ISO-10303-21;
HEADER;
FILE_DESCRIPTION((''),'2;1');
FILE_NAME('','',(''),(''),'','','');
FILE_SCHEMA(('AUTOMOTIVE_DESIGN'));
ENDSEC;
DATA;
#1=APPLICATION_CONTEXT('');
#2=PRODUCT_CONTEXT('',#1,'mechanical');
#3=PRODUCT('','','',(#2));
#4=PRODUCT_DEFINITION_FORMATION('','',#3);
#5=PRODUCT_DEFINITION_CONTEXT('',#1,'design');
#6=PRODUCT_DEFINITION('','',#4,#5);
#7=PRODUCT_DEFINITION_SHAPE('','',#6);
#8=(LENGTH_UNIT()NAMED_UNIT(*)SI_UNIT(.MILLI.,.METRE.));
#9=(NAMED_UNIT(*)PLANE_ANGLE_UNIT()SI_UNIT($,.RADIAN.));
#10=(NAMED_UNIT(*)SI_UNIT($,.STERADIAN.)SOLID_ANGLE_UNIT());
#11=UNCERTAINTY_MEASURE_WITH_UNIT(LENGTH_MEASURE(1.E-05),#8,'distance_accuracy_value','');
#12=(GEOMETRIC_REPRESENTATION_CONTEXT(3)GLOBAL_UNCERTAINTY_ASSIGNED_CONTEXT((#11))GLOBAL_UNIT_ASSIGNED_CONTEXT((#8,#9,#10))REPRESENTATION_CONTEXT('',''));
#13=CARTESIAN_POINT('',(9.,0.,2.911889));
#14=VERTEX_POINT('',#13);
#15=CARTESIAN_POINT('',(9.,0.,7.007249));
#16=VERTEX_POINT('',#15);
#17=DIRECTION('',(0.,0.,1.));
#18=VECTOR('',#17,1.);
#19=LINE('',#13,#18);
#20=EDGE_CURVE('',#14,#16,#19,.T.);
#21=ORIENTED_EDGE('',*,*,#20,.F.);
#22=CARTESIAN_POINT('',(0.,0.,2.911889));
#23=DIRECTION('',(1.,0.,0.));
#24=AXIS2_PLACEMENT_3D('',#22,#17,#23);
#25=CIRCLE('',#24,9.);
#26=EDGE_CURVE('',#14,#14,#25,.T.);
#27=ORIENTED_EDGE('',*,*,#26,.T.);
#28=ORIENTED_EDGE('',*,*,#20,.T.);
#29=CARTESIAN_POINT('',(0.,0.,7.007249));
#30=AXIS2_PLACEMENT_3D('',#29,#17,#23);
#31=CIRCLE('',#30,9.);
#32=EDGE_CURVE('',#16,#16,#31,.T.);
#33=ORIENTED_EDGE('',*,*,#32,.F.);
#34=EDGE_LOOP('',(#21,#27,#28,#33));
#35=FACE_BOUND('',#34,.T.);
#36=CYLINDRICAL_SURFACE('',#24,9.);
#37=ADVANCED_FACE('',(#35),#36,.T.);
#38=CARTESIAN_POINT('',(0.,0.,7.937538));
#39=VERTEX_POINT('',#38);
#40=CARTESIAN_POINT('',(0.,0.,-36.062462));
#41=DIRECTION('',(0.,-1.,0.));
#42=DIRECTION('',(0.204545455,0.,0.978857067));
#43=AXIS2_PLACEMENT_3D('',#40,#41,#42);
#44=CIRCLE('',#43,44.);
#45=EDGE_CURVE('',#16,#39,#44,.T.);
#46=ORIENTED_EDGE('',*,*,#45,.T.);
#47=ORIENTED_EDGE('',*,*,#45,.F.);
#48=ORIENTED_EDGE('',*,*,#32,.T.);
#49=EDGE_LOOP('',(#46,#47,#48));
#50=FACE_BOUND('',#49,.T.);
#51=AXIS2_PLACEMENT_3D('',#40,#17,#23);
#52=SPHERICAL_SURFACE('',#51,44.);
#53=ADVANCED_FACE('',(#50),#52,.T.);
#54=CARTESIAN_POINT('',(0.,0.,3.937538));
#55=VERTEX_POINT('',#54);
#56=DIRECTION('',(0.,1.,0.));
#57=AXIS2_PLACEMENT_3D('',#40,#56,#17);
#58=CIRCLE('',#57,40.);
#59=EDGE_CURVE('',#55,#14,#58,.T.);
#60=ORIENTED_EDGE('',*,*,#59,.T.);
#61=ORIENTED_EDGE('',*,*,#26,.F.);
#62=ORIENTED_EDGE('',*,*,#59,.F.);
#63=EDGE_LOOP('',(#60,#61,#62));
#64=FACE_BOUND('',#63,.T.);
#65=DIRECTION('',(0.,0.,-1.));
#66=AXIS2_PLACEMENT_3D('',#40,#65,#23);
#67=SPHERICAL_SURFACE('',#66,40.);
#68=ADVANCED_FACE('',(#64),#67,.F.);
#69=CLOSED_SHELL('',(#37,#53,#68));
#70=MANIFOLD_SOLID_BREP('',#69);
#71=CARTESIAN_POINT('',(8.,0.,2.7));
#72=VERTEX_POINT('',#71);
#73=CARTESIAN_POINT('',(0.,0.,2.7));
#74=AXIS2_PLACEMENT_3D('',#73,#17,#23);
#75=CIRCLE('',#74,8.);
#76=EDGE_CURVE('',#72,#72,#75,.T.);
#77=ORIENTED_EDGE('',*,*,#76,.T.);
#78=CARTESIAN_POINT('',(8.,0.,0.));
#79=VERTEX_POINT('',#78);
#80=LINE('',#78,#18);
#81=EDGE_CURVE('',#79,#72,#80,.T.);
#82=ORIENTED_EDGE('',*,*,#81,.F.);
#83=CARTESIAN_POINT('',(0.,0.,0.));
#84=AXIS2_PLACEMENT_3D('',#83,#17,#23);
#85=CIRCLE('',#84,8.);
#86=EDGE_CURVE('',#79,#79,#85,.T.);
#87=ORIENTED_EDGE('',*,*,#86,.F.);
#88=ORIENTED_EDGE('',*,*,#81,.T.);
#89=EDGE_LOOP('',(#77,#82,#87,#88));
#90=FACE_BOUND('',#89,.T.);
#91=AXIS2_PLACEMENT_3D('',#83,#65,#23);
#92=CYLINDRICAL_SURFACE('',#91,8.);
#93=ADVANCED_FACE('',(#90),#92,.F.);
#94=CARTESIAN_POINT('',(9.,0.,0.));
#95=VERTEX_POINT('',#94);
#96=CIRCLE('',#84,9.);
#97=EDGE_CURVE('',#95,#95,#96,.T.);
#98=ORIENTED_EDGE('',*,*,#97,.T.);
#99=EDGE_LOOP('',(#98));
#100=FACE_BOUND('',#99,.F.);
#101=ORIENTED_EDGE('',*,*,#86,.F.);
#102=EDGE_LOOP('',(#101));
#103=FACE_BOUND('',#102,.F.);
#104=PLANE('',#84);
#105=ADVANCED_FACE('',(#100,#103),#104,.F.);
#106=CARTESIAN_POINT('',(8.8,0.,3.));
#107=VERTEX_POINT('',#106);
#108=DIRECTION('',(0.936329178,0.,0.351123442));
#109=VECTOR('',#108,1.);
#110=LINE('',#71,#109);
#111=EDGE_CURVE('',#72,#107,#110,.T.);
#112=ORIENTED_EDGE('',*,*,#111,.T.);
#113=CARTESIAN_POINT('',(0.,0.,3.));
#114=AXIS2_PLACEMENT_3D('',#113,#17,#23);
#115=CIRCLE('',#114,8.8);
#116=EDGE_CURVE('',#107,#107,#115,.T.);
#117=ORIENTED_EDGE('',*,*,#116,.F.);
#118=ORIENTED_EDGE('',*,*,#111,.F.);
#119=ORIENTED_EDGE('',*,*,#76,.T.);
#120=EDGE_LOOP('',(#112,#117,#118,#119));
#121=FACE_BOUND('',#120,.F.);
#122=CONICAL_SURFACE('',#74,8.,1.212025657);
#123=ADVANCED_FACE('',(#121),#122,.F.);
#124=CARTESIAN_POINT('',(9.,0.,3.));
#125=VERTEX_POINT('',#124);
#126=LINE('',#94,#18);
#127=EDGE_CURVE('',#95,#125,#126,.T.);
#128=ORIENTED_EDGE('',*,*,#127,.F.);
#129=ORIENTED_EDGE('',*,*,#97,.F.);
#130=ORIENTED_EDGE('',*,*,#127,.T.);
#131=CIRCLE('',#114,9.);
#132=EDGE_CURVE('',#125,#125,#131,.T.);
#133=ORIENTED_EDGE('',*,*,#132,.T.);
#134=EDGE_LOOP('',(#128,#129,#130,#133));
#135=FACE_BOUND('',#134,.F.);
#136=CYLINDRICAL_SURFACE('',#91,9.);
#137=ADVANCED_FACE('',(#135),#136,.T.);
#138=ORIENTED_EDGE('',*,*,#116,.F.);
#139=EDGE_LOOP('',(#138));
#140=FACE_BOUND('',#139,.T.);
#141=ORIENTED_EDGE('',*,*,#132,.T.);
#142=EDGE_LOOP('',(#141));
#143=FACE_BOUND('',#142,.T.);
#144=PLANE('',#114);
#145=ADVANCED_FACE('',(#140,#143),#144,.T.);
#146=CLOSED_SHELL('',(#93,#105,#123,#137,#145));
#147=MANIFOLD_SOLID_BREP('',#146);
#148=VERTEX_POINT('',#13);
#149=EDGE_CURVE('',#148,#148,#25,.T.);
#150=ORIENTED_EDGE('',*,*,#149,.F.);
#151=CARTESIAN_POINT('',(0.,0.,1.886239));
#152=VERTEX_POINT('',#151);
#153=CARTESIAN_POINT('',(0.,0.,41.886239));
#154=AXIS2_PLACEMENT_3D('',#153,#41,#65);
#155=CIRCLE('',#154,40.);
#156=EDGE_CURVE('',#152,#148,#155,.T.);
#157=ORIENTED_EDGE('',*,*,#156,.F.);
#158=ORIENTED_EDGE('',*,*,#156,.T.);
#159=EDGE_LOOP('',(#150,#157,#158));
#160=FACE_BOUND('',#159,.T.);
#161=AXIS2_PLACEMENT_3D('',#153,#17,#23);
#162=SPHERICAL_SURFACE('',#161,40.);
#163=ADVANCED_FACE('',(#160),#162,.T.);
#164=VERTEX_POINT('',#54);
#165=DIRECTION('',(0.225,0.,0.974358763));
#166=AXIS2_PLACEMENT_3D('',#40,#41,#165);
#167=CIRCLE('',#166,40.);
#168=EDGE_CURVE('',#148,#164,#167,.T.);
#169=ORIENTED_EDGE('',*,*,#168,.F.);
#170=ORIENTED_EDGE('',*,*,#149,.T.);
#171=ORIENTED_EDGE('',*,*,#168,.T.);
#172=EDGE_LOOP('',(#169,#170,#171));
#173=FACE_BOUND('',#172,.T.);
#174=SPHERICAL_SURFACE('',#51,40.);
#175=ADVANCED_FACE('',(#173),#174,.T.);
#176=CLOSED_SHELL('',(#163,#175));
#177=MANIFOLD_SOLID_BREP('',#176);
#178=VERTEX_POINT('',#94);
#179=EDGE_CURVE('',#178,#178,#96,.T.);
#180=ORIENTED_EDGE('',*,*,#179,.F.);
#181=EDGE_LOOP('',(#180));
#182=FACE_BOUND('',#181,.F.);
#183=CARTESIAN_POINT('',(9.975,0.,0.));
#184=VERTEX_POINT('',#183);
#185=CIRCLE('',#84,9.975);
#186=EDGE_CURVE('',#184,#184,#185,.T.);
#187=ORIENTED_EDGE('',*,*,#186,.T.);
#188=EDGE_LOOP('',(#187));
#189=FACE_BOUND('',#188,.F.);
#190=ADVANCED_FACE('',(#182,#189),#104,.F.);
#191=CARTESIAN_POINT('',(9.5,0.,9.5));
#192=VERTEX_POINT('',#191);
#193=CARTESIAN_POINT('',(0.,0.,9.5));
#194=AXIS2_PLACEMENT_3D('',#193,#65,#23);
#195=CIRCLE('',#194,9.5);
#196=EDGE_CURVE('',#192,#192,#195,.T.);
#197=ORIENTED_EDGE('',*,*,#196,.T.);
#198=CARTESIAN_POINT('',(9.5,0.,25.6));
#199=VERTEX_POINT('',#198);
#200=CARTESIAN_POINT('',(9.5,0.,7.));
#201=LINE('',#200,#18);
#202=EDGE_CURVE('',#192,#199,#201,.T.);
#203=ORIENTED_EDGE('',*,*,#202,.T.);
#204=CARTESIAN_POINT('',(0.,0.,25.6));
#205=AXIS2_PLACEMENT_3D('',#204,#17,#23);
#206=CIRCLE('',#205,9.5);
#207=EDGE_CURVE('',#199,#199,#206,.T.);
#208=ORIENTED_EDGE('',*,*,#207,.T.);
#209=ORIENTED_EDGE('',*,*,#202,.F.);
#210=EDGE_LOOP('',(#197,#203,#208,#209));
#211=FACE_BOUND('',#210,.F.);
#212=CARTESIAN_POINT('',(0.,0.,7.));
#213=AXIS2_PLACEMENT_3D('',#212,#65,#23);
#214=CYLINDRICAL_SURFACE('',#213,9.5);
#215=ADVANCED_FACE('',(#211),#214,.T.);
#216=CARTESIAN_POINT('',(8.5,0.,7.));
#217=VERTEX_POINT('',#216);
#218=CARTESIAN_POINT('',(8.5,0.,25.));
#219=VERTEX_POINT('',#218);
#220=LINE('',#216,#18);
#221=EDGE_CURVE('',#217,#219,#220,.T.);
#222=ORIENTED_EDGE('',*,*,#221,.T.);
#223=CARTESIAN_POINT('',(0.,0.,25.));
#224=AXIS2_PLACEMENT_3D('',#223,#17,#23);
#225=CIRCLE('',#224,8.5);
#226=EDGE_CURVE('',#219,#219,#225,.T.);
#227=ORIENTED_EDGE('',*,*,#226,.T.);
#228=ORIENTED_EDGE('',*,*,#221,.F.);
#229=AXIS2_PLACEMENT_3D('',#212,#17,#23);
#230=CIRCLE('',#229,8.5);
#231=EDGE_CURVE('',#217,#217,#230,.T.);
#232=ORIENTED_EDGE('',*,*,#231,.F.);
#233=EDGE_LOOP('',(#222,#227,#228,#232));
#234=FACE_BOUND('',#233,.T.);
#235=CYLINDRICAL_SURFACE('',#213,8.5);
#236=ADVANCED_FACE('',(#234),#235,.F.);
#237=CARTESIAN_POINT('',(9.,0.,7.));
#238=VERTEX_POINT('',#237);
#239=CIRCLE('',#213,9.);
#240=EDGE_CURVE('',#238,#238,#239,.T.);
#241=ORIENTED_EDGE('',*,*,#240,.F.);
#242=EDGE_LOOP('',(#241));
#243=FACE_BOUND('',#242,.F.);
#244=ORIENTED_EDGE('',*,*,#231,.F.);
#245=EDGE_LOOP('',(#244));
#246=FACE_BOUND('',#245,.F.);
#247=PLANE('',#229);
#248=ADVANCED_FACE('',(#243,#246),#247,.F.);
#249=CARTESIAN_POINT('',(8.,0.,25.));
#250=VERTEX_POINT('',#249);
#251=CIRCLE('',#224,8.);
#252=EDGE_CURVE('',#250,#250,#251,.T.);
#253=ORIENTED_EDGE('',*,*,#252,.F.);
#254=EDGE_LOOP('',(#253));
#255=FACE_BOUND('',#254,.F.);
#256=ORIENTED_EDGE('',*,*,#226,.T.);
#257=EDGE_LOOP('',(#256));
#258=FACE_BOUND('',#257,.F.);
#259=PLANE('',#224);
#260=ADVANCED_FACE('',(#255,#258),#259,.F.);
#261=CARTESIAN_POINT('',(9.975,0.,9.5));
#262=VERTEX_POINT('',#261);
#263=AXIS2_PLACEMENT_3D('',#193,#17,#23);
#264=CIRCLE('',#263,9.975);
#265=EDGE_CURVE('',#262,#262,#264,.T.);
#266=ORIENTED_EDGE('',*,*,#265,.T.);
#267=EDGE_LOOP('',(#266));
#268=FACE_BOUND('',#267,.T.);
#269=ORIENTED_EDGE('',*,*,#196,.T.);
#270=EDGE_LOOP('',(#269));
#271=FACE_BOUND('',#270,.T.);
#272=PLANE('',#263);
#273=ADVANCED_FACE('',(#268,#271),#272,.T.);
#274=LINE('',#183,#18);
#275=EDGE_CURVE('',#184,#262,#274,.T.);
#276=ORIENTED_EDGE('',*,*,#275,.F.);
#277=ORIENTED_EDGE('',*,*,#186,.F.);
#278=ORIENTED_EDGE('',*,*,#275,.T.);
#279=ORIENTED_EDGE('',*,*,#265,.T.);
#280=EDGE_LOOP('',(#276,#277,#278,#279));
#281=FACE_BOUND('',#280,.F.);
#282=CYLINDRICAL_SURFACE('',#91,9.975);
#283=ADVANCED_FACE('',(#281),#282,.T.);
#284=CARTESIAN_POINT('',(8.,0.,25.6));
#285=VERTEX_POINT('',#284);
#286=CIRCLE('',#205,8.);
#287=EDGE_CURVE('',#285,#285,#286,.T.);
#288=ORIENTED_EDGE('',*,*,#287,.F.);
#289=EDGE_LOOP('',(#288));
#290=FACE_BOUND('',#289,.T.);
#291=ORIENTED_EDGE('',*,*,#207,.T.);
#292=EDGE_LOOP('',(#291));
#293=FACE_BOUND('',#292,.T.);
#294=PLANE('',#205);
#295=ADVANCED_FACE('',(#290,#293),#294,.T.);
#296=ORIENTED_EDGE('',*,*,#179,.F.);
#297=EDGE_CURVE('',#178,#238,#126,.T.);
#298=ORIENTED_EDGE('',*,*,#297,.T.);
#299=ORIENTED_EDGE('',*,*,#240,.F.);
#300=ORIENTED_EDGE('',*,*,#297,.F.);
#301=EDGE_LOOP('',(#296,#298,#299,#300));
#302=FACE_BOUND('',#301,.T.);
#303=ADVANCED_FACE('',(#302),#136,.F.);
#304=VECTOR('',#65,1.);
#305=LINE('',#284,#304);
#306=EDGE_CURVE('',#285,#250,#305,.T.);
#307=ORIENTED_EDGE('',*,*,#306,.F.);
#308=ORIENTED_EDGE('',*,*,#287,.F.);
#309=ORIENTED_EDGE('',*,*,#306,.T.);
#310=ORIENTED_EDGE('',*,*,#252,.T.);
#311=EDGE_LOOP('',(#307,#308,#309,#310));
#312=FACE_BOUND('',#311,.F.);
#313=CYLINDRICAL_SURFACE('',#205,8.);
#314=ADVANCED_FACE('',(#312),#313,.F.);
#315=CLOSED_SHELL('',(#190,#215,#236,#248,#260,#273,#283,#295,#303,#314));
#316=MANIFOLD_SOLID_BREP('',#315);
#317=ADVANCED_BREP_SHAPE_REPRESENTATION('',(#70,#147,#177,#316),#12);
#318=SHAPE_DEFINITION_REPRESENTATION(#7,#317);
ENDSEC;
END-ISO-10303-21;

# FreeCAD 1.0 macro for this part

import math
import FreeCAD as App
import Part
import Sketcher

V = App.Vector
Q = App.Units.Quantity


def edges_at(feature, points):
    """Names of the edges that pass closest to the given points."""
    edges = feature.Shape.Edges
    near = lambda p: min(range(len(edges)), key=lambda i: edges[i].distToShape(Part.Vertex(*p))[0])
    return sorted({f"Edge{near(p) + 1}" for p in points})

doc = App.newDocument("Part")
params = doc.addObject("Spreadsheet::Sheet", "Params")
for row, (alias, value) in enumerate([
    ("sketch1_diameter", "18 mm"),
    ("sketch1_diameter2", "19.95 mm"),
    ("pad1_length", "9.5 mm"),
    ("sketch2_diameter", "19 mm"),
    ("sketch2_diameter2", "17 mm"),
    ("pad2_length", "18.6 mm"),
    ("sketch3_diameter", "17 mm"),
    ("sketch3_diameter2", "16 mm"),
    ("pad3_length", "0.6 mm"),
    ("sketch4_diameter", "18 mm"),
    ("sketch4_diameter2", "16 mm"),
    ("pad4_length", "3 mm"),
    ("chamfer_size", "0.3 mm"),
    ("chamfer_size2", "0.8 mm"),
    ("sketch5_radius", "40 mm"),
    ("sketch5_radius2", "44 mm"),
    ("revolution_angle", "360 deg"),
    ("sketch6_radius", "40 mm"),
    ("revolution2_angle", "360 deg"),
], start=1):
    params.set(f"A{row}", alias)
    params.set(f"B{row}", "=" + value)
    params.setAlias(f"B{row}", alias)

body = doc.addObject("PartDesign::Body", "Body")

sketch1 = body.newObject("Sketcher::SketchObject", "Sketch")
sketch1.AttachmentSupport = (doc.getObject("XY_Plane"), [""])
sketch1.MapMode = "FlatFace"
sketch1.addGeometry(Part.Circle(V(0, 0, 0), V(0, 0, 1), 10), False)
sketch1.addGeometry(Part.Circle(V(0, 0, 0), V(0, 0, 1), 9), False)
sketch1.addConstraint(Sketcher.Constraint("Coincident", 0, 3, -1, 1))
sketch1.addConstraint(Sketcher.Constraint("Coincident", 1, 3, -1, 1))
sketch1.addConstraint(Sketcher.Constraint("Diameter", 1, Q("18 mm")))
sketch1.addConstraint(Sketcher.Constraint("Diameter", 0, Q("19.95 mm")))
sketch1.setExpression("Constraints[2]", "Params.sketch1_diameter")
sketch1.setExpression("Constraints[3]", "Params.sketch1_diameter2")
pad1 = body.newObject("PartDesign::Pad", "Pad")
pad1.Profile = sketch1
pad1.setExpression("Length", "Params.pad1_length")

sketch2 = body.newObject("Sketcher::SketchObject", "Sketch001")
sketch2.AttachmentSupport = (doc.getObject("XY_Plane"), [""])
sketch2.MapMode = "FlatFace"
sketch2.AttachmentOffset = App.Placement(V(0, 0, 7), App.Rotation())
sketch2.addGeometry(Part.Circle(V(0, 0, 0), V(0, 0, 1), 10), False)
sketch2.addGeometry(Part.Circle(V(0, 0, 0), V(0, 0, 1), 8), False)
sketch2.addConstraint(Sketcher.Constraint("Coincident", 0, 3, -1, 1))
sketch2.addConstraint(Sketcher.Constraint("Coincident", 1, 3, -1, 1))
sketch2.addConstraint(Sketcher.Constraint("Diameter", 0, Q("19 mm")))
sketch2.addConstraint(Sketcher.Constraint("Diameter", 1, Q("17 mm")))
sketch2.setExpression("Constraints[2]", "Params.sketch2_diameter")
sketch2.setExpression("Constraints[3]", "Params.sketch2_diameter2")
pad2 = body.newObject("PartDesign::Pad", "Pad001")
pad2.Profile = sketch2
pad2.setExpression("Length", "Params.pad2_length")

sketch3 = body.newObject("Sketcher::SketchObject", "Sketch002")
sketch3.AttachmentSupport = (doc.getObject("XY_Plane"), [""])
sketch3.MapMode = "FlatFace"
sketch3.AttachmentOffset = App.Placement(V(0, 0, 25.6), App.Rotation())
sketch3.addGeometry(Part.Circle(V(0, 0, 0), V(0, 0, 1), 8), False)
sketch3.addGeometry(Part.Circle(V(0, 0, 0), V(0, 0, 1), 8), False)
sketch3.addConstraint(Sketcher.Constraint("Coincident", 0, 3, -1, 1))
sketch3.addConstraint(Sketcher.Constraint("Coincident", 1, 3, -1, 1))
sketch3.addConstraint(Sketcher.Constraint("Diameter", 0, Q("17 mm")))
sketch3.addConstraint(Sketcher.Constraint("Diameter", 1, Q("16 mm")))
sketch3.setExpression("Constraints[2]", "Params.sketch3_diameter")
sketch3.setExpression("Constraints[3]", "Params.sketch3_diameter2")
pad3 = body.newObject("PartDesign::Pad", "Pad002")
pad3.Profile = sketch3
pad3.setExpression("Length", "Params.pad3_length")
pad3.Reversed = True
body2 = doc.addObject("PartDesign::Body", "Body001")

sketch4 = body2.newObject("Sketcher::SketchObject", "Sketch003")
sketch4.AttachmentSupport = (doc.getObject("XY_Plane001"), [""])
sketch4.MapMode = "FlatFace"
sketch4.addGeometry(Part.Circle(V(0, 0, 0), V(0, 0, 1), 9), False)
sketch4.addGeometry(Part.Circle(V(0, 0, 0), V(0, 0, 1), 8), False)
sketch4.addConstraint(Sketcher.Constraint("Coincident", 0, 3, -1, 1))
sketch4.addConstraint(Sketcher.Constraint("Coincident", 1, 3, -1, 1))
sketch4.addConstraint(Sketcher.Constraint("Diameter", 0, Q("18 mm")))
sketch4.addConstraint(Sketcher.Constraint("Diameter", 1, Q("16 mm")))
sketch4.setExpression("Constraints[2]", "Params.sketch4_diameter")
sketch4.setExpression("Constraints[3]", "Params.sketch4_diameter2")
pad4 = body2.newObject("PartDesign::Pad", "Pad003")
pad4.Profile = sketch4
pad4.setExpression("Length", "Params.pad4_length")
doc.recompute()

chamfer = body2.newObject("PartDesign::Chamfer", "Chamfer")
chamfer.Base = (pad4, edges_at(pad4, [(-8, 0, 3)]))
chamfer.ChamferType = "Two distances"
chamfer.setExpression("Size", "Params.chamfer_size")
chamfer.setExpression("Size2", "Params.chamfer_size2")
body3 = doc.addObject("PartDesign::Body", "Body002")

sketch5 = body3.newObject("Sketcher::SketchObject", "Sketch004")
sketch5.AttachmentSupport = (doc.getObject("XZ_Plane002"), [""])
sketch5.MapMode = "FlatFace"
sketch5.addGeometry(Part.ArcOfCircle(Part.Circle(V(0, -36.1, 0), V(0, 0, 1), 40), math.radians(77), math.radians(90)), False)
sketch5.addGeometry(Part.LineSegment(V(9, 2.9, 0), V(9, 7, 0)), False)
sketch5.addGeometry(Part.ArcOfCircle(Part.Circle(V(0, -36.1, 0), V(0, 0, 1), 44), math.radians(78.2), math.radians(90)), False)
sketch5.addGeometry(Part.LineSegment(V(0, 7.9, 0), V(0, 3.9, 0)), False)
sketch5.addConstraint(Sketcher.Constraint("Coincident", 0, 1, 1, 1))
sketch5.addConstraint(Sketcher.Constraint("Coincident", 1, 2, 2, 1))
sketch5.addConstraint(Sketcher.Constraint("Coincident", 2, 2, 3, 1))
sketch5.addConstraint(Sketcher.Constraint("Coincident", 3, 2, 0, 2))
sketch5.addConstraint(Sketcher.Constraint("Vertical", 1))
sketch5.addConstraint(Sketcher.Constraint("Vertical", 3))
sketch5.addConstraint(Sketcher.Constraint("Coincident", 2, 3, 0, 3))
sketch5.addConstraint(Sketcher.Constraint("PointOnObject", 0, 3, -2))
sketch5.addConstraint(Sketcher.Constraint("PointOnObject", 2, 2, -2))
sketch5.addConstraint(Sketcher.Constraint("Radius", 0, Q("40 mm")))
sketch5.addConstraint(Sketcher.Constraint("Radius", 2, Q("44 mm")))
sketch5.addConstraint(Sketcher.Constraint("DistanceX", -1, 1, 0, 1, Q("9 mm")))
sketch5.addConstraint(Sketcher.Constraint("DistanceY", 0, 3, -1, 1, Q("36.062462 mm")))
sketch5.setExpression("Constraints[9]", "Params.sketch5_radius")
sketch5.setExpression("Constraints[10]", "Params.sketch5_radius2")
revolution = body3.newObject("PartDesign::Revolution", "Revolution")
revolution.Profile = sketch5
revolution.ReferenceAxis = (sketch5, ["V_Axis"])
revolution.setExpression("Angle", "Params.revolution_angle")
body4 = doc.addObject("PartDesign::Body", "Body003")

sketch6 = body4.newObject("Sketcher::SketchObject", "Sketch005")
sketch6.AttachmentSupport = (doc.getObject("XZ_Plane003"), [""])
sketch6.MapMode = "FlatFace"
sketch6.addGeometry(Part.ArcOfCircle(Part.Circle(V(0, 41.9, 0), V(0, 0, 1), 40), math.radians(-90), math.radians(-77)), False)
sketch6.addGeometry(Part.ArcOfCircle(Part.Circle(V(0, -36.1, 0), V(0, 0, 1), 40), math.radians(77), math.radians(90)), False)
sketch6.addGeometry(Part.LineSegment(V(0, 3.9, 0), V(0, 1.9, 0)), False)
sketch6.addConstraint(Sketcher.Constraint("Coincident", 0, 2, 1, 1))
sketch6.addConstraint(Sketcher.Constraint("Coincident", 1, 2, 2, 1))
sketch6.addConstraint(Sketcher.Constraint("Coincident", 2, 2, 0, 1))
sketch6.addConstraint(Sketcher.Constraint("Vertical", 2))
sketch6.addConstraint(Sketcher.Constraint("Equal", 0, 1))
sketch6.addConstraint(Sketcher.Constraint("PointOnObject", 0, 3, -2))
sketch6.addConstraint(Sketcher.Constraint("PointOnObject", 1, 3, -2))
sketch6.addConstraint(Sketcher.Constraint("PointOnObject", 1, 2, -2))
sketch6.addConstraint(Sketcher.Constraint("Radius", 0, Q("40 mm")))
sketch6.addConstraint(Sketcher.Constraint("DistanceX", -1, 1, 0, 2, Q("9 mm")))
sketch6.addConstraint(Sketcher.Constraint("DistanceY", -1, 1, 0, 3, Q("41.886239 mm")))
sketch6.setExpression("Constraints[8]", "Params.sketch6_radius")
revolution2 = body4.newObject("PartDesign::Revolution", "Revolution001")
revolution2.Profile = sketch6
revolution2.ReferenceAxis = (sketch6, ["V_Axis"])
revolution2.setExpression("Angle", "Params.revolution2_angle")

doc.recompute()
